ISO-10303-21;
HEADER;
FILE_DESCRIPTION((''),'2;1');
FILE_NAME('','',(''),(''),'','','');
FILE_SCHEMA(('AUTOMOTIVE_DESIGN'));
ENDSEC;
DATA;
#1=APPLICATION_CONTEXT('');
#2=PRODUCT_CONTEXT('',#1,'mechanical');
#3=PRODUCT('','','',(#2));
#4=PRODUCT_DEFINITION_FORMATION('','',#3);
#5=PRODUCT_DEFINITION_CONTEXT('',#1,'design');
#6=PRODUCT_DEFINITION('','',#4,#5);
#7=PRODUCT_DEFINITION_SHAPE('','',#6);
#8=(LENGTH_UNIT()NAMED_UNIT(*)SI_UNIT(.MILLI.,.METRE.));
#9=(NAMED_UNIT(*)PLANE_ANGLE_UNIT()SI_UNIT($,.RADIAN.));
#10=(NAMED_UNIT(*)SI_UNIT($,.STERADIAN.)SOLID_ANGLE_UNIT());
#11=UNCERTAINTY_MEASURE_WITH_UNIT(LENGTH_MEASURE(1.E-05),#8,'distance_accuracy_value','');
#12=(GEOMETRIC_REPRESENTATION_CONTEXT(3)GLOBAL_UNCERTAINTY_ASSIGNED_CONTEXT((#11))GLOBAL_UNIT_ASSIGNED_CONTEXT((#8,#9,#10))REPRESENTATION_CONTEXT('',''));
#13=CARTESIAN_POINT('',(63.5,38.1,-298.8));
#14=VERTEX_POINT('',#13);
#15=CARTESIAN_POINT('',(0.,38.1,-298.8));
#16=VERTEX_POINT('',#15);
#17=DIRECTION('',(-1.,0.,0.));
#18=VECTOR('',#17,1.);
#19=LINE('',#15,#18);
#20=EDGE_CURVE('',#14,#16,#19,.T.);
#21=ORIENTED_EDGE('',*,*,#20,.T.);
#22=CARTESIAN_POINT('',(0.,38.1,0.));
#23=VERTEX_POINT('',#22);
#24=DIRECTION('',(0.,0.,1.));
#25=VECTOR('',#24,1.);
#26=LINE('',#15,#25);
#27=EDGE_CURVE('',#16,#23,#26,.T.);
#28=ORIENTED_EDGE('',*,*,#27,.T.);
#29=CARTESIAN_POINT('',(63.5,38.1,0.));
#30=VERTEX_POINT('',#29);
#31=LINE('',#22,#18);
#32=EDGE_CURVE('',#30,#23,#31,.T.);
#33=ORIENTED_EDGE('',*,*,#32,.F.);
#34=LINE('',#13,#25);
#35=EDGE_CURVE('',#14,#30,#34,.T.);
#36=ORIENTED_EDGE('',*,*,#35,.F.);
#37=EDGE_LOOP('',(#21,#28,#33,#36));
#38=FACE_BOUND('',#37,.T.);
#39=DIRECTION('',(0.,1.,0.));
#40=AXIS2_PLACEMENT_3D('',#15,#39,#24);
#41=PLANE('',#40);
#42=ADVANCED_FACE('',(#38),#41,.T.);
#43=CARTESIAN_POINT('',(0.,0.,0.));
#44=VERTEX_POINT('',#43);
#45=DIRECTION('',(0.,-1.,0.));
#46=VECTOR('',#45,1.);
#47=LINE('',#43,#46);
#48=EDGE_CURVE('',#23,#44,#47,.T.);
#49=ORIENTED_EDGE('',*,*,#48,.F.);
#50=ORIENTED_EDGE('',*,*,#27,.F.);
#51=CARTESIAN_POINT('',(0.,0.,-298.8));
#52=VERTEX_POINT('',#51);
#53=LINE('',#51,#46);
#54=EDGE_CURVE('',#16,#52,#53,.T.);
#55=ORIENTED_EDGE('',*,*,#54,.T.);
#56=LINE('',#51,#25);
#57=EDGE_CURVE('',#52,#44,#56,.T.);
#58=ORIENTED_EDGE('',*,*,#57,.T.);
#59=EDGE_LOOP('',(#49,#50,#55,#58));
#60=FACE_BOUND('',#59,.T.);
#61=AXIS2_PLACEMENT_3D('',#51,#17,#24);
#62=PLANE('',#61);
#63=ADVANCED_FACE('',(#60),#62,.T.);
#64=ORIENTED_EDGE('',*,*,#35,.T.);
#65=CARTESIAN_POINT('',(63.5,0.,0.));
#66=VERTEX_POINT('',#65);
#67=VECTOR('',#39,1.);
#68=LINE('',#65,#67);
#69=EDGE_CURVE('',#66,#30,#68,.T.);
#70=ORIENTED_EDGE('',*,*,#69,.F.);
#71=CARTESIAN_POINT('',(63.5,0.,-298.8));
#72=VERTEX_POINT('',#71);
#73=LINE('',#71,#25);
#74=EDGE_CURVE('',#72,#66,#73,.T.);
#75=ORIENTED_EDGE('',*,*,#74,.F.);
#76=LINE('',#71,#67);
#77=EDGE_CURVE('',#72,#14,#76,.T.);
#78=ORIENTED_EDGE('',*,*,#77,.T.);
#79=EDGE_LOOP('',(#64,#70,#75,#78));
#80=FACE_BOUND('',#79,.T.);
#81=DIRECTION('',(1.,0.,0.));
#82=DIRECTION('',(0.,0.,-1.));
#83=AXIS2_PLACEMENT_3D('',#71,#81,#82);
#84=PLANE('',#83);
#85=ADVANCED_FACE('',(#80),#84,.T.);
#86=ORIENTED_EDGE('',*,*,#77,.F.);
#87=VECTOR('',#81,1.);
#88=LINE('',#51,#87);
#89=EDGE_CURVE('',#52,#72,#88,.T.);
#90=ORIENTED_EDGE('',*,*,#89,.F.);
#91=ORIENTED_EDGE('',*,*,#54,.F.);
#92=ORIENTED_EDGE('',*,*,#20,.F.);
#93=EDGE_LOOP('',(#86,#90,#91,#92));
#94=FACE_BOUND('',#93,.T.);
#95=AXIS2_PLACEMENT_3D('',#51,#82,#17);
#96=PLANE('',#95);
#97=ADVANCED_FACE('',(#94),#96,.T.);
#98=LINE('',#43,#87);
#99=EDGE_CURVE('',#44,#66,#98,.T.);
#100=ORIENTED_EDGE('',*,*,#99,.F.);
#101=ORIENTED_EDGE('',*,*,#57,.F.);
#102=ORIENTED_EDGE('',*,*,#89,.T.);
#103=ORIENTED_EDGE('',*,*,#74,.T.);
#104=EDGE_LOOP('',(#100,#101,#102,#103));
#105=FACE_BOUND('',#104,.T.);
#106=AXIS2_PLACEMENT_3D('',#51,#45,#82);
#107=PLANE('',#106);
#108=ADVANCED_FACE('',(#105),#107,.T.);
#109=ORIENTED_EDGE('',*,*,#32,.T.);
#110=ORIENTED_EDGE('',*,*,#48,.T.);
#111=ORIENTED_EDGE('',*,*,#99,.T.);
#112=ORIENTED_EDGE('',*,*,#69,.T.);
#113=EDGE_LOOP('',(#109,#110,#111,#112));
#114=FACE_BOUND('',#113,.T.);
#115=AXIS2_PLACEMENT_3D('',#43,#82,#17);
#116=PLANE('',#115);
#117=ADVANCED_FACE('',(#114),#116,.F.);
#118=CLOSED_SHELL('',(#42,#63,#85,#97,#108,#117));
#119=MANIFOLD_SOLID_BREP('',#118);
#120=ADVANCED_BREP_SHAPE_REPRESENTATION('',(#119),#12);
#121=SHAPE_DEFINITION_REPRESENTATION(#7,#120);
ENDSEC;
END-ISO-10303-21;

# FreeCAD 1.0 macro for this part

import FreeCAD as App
import Part
import Sketcher
from FreeCAD import Vector
Q = App.Units.Quantity

doc = App.newDocument("Part")
body = doc.addObject("PartDesign::Body", "Body")

# Sketch on XY plane
sketch1 = body.newObject("Sketcher::SketchObject", "Sketch")
sketch1.AttachmentSupport = (doc.getObject("XY_Plane"), [""])
sketch1.MapMode = "FlatFace"
sketch1.addGeometry(Part.LineSegment(Vector(0, 38, 0), Vector(0, 0, 0)), False)
sketch1.addGeometry(Part.LineSegment(Vector(0, 0, 0), Vector(64, 0, 0)), False)
sketch1.addGeometry(Part.LineSegment(Vector(64, 0, 0), Vector(64, 38, 0)), False)
sketch1.addGeometry(Part.LineSegment(Vector(64, 38, 0), Vector(0, 38, 0)), False)
sketch1.addConstraint(Sketcher.Constraint("Coincident", 0, 2, 1, 1))
sketch1.addConstraint(Sketcher.Constraint("Coincident", 1, 2, 2, 1))
sketch1.addConstraint(Sketcher.Constraint("Coincident", 2, 2, 3, 1))
sketch1.addConstraint(Sketcher.Constraint("Coincident", 3, 2, 0, 1))
sketch1.addConstraint(Sketcher.Constraint("Vertical", 0))
sketch1.addConstraint(Sketcher.Constraint("Horizontal", 1))
sketch1.addConstraint(Sketcher.Constraint("Vertical", 2))
sketch1.addConstraint(Sketcher.Constraint("Horizontal", 3))
sketch1.addConstraint(Sketcher.Constraint("Coincident", 0, 2, -1, 1))
sketch1.addConstraint(Sketcher.Constraint("DistanceX", 1, 1, 1, 2, Q("2.5 in")))
sketch1.addConstraint(Sketcher.Constraint("DistanceY", 0, 2, 0, 1, Q("1.5 in")))
pad1 = body.newObject("PartDesign::Pad", "Pad")
pad1.Profile = sketch1
pad1.Length = 298.8
pad1.Reversed = True

doc.recompute()
